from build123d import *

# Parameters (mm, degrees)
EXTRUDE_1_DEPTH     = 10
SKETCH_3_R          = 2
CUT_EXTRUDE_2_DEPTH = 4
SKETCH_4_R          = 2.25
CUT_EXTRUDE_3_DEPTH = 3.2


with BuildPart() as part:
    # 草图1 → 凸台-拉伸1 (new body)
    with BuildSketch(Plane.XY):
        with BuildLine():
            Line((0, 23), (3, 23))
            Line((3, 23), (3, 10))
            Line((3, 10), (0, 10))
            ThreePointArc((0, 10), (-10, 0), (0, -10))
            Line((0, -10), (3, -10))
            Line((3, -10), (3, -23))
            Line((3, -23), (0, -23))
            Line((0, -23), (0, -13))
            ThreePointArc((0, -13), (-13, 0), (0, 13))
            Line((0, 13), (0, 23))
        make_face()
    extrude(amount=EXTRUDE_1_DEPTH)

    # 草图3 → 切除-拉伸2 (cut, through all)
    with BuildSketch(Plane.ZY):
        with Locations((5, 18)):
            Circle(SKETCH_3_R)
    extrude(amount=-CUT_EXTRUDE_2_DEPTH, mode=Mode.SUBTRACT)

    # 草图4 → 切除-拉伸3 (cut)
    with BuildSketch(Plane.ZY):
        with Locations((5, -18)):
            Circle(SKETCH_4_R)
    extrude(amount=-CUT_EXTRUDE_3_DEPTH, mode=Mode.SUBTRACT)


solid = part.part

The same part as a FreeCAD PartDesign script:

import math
import FreeCAD as App
import Part
import Sketcher
from FreeCAD import Vector
Q = App.Units.Quantity

doc = App.newDocument("Part")
body = doc.addObject("PartDesign::Body", "Body")

sketch1 = body.newObject("Sketcher::SketchObject", "Sketch")
sketch1.AttachmentSupport = (doc.getObject("XY_Plane"), [""])
sketch1.MapMode = "FlatFace"
sketch1.addGeometry(Part.LineSegment(Vector(3, 23, 0), Vector(0, 23, 0)), False)
sketch1.addGeometry(Part.LineSegment(Vector(0, 23, 0), Vector(0, 13, 0)), False)
sketch1.addGeometry(Part.ArcOfCircle(Part.Circle(Vector(0, 0, 0), Vector(0, 0, 1), 13), math.radians(90), math.radians(270)), False)
sketch1.addGeometry(Part.LineSegment(Vector(0, -13, 0), Vector(0, -23, 0)), False)
sketch1.addGeometry(Part.LineSegment(Vector(0, -23, 0), Vector(3, -23, 0)), False)
sketch1.addGeometry(Part.LineSegment(Vector(3, -23, 0), Vector(3, -10, 0)), False)
sketch1.addGeometry(Part.LineSegment(Vector(3, -10, 0), Vector(0, -10, 0)), False)
sketch1.addGeometry(Part.ArcOfCircle(Part.Circle(Vector(0, 0, 0), Vector(0, 0, 1), 10), math.radians(90), math.radians(270)), False)
sketch1.addGeometry(Part.LineSegment(Vector(0, 10, 0), Vector(3, 10, 0)), False)
sketch1.addGeometry(Part.LineSegment(Vector(3, 10, 0), Vector(3, 23, 0)), False)
sketch1.addConstraint(Sketcher.Constraint("Coincident", 0, 2, 1, 1))
sketch1.addConstraint(Sketcher.Constraint("Coincident", 1, 2, 2, 1))
sketch1.addConstraint(Sketcher.Constraint("Coincident", 2, 2, 3, 1))
sketch1.addConstraint(Sketcher.Constraint("Coincident", 3, 2, 4, 1))
sketch1.addConstraint(Sketcher.Constraint("Coincident", 4, 2, 5, 1))
sketch1.addConstraint(Sketcher.Constraint("Coincident", 5, 2, 6, 1))
sketch1.addConstraint(Sketcher.Constraint("Tangent", 6, 2, 7, 2))
sketch1.addConstraint(Sketcher.Constraint("Tangent", 7, 1, 8, 1))
sketch1.addConstraint(Sketcher.Constraint("Coincident", 8, 2, 9, 1))
sketch1.addConstraint(Sketcher.Constraint("Coincident", 9, 2, 0, 1))
sketch1.addConstraint(Sketcher.Constraint("Horizontal", 0))
sketch1.addConstraint(Sketcher.Constraint("Vertical", 1))
sketch1.addConstraint(Sketcher.Constraint("Vertical", 3))
sketch1.addConstraint(Sketcher.Constraint("Horizontal", 4))
sketch1.addConstraint(Sketcher.Constraint("Vertical", 5))
sketch1.addConstraint(Sketcher.Constraint("Horizontal", 6))
sketch1.addConstraint(Sketcher.Constraint("Horizontal", 8))
sketch1.addConstraint(Sketcher.Constraint("Vertical", 9))
sketch1.addConstraint(Sketcher.Constraint("Coincident", 2, 3, -1, 1))
sketch1.addConstraint(Sketcher.Constraint("Coincident", 7, 3, -1, 1))
sketch1.addConstraint(Sketcher.Constraint("Symmetric", 0, 2, 3, 2, -1, 1))
sketch1.addConstraint(Sketcher.Constraint("PointOnObject", 0, 2, -2))
sketch1.addConstraint(Sketcher.Constraint("Vertical", 5, 2, 8, 2))
sketch1.addConstraint(Sketcher.Constraint("Radius", 2, Q("13 mm")))
sketch1.addConstraint(Sketcher.Constraint("Radius", 7, Q("10 mm")))
sketch1.addConstraint(Sketcher.Constraint("DistanceX", 0, 2, 0, 1, Q("3 mm")))
sketch1.addConstraint(Sketcher.Constraint("DistanceY", 1, 2, 1, 1, Q("10 mm")))
pad1 = body.newObject("PartDesign::Pad", "Pad")
pad1.Profile = sketch1
pad1.Length = 10

sketch2 = body.newObject("Sketcher::SketchObject", "Sketch001")
sketch2.AttachmentSupport = (doc.getObject("YZ_Plane"), [""])
sketch2.MapMode = "FlatFace"
sketch2.addGeometry(Part.Circle(Vector(18, 5, 0), Vector(0, 0, 1), 2), False)
sketch2.addConstraint(Sketcher.Constraint("Diameter", 0, Q("4 mm")))
sketch2.addConstraint(Sketcher.Constraint("DistanceX", -1, 1, 0, 3, Q("18 mm")))
sketch2.addConstraint(Sketcher.Constraint("DistanceY", -1, 1, 0, 3, Q("5 mm")))
pocket1 = body.newObject("PartDesign::Pocket", "Pocket")
pocket1.Profile = sketch2
pocket1.Type = "ThroughAll"
pocket1.Reversed = True

sketch3 = body.newObject("Sketcher::SketchObject", "Sketch002")
sketch3.AttachmentSupport = (doc.getObject("YZ_Plane"), [""])
sketch3.MapMode = "FlatFace"
sketch3.addGeometry(Part.Circle(Vector(-18, 5, 0), Vector(0, 0, 1), 2.2), False)
sketch3.addConstraint(Sketcher.Constraint("Diameter", 0, Q("4.5 mm")))
sketch3.addConstraint(Sketcher.Constraint("DistanceX", 0, 3, -1, 1, Q("18 mm")))
sketch3.addConstraint(Sketcher.Constraint("DistanceY", -1, 1, 0, 3, Q("5 mm")))
pocket2 = body.newObject("PartDesign::Pocket", "Pocket001")
pocket2.Profile = sketch3
pocket2.Length = 3.2
pocket2.Reversed = True

doc.recompute()
